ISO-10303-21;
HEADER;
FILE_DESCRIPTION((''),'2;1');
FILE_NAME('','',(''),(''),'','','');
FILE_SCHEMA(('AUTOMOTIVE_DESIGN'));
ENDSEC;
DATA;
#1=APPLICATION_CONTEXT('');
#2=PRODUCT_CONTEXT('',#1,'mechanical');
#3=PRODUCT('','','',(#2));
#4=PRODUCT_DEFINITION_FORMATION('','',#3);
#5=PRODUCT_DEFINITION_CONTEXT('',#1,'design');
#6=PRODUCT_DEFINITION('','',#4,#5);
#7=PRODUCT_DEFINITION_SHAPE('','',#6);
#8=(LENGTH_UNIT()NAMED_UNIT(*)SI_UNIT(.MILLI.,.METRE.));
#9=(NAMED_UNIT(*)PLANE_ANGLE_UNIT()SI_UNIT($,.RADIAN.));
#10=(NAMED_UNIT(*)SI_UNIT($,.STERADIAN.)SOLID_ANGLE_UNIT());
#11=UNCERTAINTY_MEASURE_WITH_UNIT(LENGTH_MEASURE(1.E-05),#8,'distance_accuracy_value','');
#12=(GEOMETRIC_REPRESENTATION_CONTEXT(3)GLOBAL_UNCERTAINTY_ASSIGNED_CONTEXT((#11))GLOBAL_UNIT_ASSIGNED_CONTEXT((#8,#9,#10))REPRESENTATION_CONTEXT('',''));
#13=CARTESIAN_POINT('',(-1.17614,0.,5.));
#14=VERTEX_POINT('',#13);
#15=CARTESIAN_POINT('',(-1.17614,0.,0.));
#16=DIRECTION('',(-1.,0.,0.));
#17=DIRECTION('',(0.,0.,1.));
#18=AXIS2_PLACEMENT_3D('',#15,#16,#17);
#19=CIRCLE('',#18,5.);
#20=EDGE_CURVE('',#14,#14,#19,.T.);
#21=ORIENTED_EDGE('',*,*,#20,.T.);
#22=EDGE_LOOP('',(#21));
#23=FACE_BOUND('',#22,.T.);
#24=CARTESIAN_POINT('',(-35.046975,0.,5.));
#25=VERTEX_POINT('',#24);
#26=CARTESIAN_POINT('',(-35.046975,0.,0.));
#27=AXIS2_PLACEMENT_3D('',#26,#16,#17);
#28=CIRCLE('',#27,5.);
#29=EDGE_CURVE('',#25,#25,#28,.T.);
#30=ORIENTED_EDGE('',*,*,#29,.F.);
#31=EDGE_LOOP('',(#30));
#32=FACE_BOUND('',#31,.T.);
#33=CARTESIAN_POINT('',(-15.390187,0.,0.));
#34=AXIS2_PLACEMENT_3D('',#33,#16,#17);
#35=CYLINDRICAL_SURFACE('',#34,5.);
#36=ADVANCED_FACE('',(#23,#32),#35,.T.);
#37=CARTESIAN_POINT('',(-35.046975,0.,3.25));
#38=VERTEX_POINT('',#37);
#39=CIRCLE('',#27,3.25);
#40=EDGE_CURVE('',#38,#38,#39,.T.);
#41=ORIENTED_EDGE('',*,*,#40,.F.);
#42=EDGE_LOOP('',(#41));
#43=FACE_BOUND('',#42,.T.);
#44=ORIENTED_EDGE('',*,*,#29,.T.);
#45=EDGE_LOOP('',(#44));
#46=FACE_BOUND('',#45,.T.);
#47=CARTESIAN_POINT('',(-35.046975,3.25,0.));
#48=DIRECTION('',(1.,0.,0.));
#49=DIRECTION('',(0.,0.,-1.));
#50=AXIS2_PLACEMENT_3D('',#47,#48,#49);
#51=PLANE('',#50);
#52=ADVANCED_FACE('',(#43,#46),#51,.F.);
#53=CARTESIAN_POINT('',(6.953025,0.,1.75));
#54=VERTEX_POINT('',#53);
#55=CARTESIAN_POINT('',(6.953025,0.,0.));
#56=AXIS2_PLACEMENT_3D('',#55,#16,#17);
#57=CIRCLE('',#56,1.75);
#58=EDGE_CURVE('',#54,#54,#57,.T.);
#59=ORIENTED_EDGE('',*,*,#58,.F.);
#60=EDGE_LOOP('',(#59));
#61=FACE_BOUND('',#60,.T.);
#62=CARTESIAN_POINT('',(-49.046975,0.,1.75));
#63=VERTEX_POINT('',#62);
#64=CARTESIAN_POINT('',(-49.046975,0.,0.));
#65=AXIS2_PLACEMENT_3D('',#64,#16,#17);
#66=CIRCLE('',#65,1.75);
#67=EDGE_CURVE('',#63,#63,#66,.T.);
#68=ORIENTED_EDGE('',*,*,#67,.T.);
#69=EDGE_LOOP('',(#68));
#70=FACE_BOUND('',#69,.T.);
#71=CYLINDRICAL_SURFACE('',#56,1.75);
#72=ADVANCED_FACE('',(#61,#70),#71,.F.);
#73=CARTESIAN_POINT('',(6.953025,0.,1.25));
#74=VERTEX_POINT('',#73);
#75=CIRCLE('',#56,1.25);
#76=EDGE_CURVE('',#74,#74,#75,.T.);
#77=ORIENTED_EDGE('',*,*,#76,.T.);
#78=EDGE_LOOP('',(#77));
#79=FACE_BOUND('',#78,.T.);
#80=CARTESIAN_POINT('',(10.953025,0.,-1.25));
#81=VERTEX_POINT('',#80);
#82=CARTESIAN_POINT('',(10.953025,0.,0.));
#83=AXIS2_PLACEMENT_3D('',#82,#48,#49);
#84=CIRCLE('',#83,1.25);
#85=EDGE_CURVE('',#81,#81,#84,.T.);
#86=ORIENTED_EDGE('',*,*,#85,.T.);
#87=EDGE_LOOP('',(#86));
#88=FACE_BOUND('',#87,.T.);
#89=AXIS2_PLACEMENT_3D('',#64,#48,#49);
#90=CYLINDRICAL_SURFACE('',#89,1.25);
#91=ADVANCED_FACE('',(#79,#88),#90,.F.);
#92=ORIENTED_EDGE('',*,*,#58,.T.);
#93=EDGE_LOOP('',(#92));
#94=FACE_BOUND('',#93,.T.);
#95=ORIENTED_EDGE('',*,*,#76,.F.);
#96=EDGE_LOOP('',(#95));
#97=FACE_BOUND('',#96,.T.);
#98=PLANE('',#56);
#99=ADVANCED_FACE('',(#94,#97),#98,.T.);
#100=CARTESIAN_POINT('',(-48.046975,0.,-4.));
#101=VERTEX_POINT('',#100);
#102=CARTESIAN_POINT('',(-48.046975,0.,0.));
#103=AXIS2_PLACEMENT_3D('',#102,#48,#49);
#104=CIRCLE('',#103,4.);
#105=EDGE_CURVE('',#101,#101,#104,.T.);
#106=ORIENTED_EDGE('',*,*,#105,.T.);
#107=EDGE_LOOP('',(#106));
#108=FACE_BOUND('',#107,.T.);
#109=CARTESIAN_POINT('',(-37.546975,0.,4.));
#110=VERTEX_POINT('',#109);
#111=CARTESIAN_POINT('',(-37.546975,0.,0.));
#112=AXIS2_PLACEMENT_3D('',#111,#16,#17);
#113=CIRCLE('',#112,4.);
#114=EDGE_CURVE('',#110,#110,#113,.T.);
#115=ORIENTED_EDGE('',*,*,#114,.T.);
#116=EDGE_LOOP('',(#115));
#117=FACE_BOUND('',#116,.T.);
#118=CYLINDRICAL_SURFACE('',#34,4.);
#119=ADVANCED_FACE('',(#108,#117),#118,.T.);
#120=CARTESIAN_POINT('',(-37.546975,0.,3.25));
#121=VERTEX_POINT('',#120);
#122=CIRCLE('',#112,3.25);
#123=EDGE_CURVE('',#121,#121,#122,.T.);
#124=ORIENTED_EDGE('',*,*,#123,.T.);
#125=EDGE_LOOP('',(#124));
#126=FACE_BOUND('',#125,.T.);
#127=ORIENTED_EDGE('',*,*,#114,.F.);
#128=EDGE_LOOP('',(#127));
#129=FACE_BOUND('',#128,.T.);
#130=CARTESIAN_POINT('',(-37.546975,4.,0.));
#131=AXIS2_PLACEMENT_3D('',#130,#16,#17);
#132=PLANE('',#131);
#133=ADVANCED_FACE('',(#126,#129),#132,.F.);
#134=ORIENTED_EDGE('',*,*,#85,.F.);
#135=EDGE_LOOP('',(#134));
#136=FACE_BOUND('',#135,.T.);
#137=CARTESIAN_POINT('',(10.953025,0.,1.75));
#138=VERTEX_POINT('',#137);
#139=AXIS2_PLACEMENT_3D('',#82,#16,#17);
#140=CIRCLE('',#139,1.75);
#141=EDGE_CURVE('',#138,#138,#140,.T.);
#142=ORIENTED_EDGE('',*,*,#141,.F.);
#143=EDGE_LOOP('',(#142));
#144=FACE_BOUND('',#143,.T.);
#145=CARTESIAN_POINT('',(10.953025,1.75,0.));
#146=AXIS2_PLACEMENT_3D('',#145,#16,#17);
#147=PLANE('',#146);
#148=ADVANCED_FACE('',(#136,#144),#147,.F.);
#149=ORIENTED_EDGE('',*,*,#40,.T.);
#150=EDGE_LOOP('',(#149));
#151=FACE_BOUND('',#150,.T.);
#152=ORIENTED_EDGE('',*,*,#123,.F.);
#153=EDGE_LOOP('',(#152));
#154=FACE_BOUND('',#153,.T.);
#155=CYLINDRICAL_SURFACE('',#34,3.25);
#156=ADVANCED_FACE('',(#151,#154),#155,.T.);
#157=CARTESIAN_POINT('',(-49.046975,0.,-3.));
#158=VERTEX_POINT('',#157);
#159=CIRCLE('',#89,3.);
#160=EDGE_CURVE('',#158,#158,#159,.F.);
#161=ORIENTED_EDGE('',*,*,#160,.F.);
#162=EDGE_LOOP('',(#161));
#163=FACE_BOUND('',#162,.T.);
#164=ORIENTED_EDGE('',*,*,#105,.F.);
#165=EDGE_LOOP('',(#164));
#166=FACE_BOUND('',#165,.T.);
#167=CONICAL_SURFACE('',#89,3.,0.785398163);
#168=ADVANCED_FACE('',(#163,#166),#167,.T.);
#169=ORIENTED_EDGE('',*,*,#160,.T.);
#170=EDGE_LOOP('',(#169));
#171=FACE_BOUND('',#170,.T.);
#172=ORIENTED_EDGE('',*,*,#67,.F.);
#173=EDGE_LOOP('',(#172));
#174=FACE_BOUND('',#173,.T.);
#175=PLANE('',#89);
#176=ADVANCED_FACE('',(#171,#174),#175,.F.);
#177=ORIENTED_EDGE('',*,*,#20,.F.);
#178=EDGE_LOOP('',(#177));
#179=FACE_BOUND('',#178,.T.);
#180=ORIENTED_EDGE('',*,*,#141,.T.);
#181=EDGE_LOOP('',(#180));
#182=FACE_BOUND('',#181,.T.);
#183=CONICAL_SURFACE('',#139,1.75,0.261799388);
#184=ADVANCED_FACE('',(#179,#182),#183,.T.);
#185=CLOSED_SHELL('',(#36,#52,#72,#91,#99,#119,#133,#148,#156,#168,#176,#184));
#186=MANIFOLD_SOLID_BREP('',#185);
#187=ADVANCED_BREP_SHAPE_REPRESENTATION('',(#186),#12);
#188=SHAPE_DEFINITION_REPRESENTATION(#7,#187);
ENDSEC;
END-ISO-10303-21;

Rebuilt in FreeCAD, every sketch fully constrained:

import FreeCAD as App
import Part
import Sketcher
Q = App.Units.Quantity


def edges_at(feature, points):
    """Names of the edges that pass closest to the given points."""
    edges = feature.Shape.Edges
    near = lambda p: min(range(len(edges)), key=lambda i: edges[i].distToShape(Part.Vertex(*p))[0])
    return sorted({f"Edge{near(p) + 1}" for p in points})


def add_polygon(sketch, points):
    """Adds a closed chain of lines whose ends are joined by coincident constraints."""
    first, n = sketch.GeometryCount, len(points)
    for a, b in zip(points, points[1:] + points[:1]):
        sketch.addGeometry(Part.LineSegment(App.Vector(*a, 0), App.Vector(*b, 0)), False)
    for i in range(n):
        sketch.addConstraint(Sketcher.Constraint("Coincident", first + i, 2, first + (i + 1) % n, 1))

doc = App.newDocument("Part")
body = doc.addObject("PartDesign::Body", "Body")

sketch1 = body.newObject("Sketcher::SketchObject", "Sketch")
sketch1.AttachmentSupport = (doc.getObject("XY_Plane"), [""])
sketch1.MapMode = "FlatFace"
add_polygon(sketch1, [(-49.046975, 0), (10.953025, 0), (10.953025, 1.75), (-1.17614, 5), (-35.046975, 5), (-35.046975, 3.25), (-37.546975, 3.25), (-37.546975, 4), (-49.046975, 4)])
sketch1.addConstraint([
    Sketcher.Constraint("Horizontal", 0),
    Sketcher.Constraint("Vertical", 1),
    Sketcher.Constraint("Horizontal", 3),
    Sketcher.Constraint("Vertical", 4),
    Sketcher.Constraint("Horizontal", 5),
    Sketcher.Constraint("Vertical", 6),
    Sketcher.Constraint("Horizontal", 7),
    Sketcher.Constraint("Vertical", 8),
    Sketcher.Constraint("PointOnObject", 0, 2, -1),
    Sketcher.Constraint("Equal", 1, 4),
    Sketcher.Constraint("DistanceX", 0, 1, 0, 2, 60.0),
    Sketcher.Constraint("DistanceY", 8, 2, 8, 1, 4.0),
    Sketcher.Constraint("Angle", 2, Q("165 deg")),
    Sketcher.Constraint("DistanceX", 5, 2, 5, 1, 2.5),
    Sketcher.Constraint("DistanceX", 7, 2, 7, 1, 11.5),
    Sketcher.Constraint("DistanceY", -1, 1, 2, 2, 5.0),
    Sketcher.Constraint("DistanceY", 1, 1, 1, 2, 1.75),
    Sketcher.Constraint("DistanceX", 2, 2, -1, 1, 1.17614),
])
revolution = body.newObject("PartDesign::Revolution", "Revolution")
revolution.Profile = sketch1
revolution.ReferenceAxis = (sketch1, ["H_Axis"])
revolution.Angle = 360

sketch2 = body.newObject("Sketcher::SketchObject", "Sketch001")
sketch2.AttachmentSupport = (doc.getObject("YZ_Plane"), [""])
sketch2.MapMode = "FlatFace"
sketch2.AttachmentOffset = App.Placement(App.Vector(0, 0, -49.046975), App.Rotation())
sketch2.addGeometry(Part.Circle(App.Vector(0, 0, 0), App.Vector(0, 0, 1), 1.75), False)
sketch2.addConstraint([
    Sketcher.Constraint("Coincident", 0, 3, -1, 1),
    Sketcher.Constraint("Diameter", 0, 3.5),
])
pocket1 = body.newObject("PartDesign::Pocket", "Pocket")
pocket1.Profile = sketch2
pocket1.Length = 56
pocket1.Reversed = True

sketch3 = body.newObject("Sketcher::SketchObject", "Sketch002")
sketch3.AttachmentSupport = (doc.getObject("YZ_Plane"), [""])
sketch3.MapMode = "FlatFace"
sketch3.AttachmentOffset = App.Placement(App.Vector(0, 0, 10.953025), App.Rotation())
sketch3.addGeometry(Part.Circle(App.Vector(0, 0, 0), App.Vector(0, 0, 1), 1.25), False)
sketch3.addConstraint([
    Sketcher.Constraint("Coincident", 0, 3, -1, 1),
    Sketcher.Constraint("Diameter", 0, 2.5),
])
pocket2 = body.newObject("PartDesign::Pocket", "Pocket001")
pocket2.Profile = sketch3
pocket2.Type = "ThroughAll"
doc.recompute()

chamfer = body.newObject("PartDesign::Chamfer", "Chamfer")
chamfer.Base = (pocket2, edges_at(pocket2, [(-49.047, 0, -4)]))
chamfer.Size = 1

doc.recompute()
